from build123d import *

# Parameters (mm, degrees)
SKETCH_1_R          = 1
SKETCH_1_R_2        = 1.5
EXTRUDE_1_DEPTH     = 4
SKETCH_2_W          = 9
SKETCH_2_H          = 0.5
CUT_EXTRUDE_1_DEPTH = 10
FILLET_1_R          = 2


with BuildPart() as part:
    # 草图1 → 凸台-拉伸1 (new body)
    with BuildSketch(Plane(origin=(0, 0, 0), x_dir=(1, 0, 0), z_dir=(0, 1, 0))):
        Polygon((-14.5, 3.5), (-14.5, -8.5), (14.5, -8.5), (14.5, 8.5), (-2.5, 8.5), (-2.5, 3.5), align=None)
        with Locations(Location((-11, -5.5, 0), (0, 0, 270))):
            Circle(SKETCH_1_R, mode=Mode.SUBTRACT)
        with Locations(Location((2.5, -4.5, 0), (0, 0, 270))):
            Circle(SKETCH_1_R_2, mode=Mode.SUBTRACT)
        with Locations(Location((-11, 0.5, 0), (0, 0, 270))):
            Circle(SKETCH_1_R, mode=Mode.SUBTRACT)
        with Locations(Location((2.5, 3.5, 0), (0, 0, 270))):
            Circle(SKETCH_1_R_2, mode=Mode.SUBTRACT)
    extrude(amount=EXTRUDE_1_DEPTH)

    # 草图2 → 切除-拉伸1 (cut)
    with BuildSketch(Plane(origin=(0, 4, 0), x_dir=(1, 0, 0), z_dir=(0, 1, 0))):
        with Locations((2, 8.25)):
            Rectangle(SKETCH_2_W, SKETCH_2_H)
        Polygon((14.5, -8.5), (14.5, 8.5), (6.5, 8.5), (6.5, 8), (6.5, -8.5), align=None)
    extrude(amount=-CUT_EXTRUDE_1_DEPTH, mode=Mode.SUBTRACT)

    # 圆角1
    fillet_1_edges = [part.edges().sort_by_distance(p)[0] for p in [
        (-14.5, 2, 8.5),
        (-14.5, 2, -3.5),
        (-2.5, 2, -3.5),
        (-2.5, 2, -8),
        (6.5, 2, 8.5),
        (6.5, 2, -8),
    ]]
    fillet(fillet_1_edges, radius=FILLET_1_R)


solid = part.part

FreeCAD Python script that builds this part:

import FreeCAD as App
import Part
import Sketcher
from FreeCAD import Vector


def edges_at(feature, points):
    """Names of the edges that pass closest to the given points."""
    edges = feature.Shape.Edges
    near = lambda p: min(range(len(edges)), key=lambda i: edges[i].distToShape(Part.Vertex(*p))[0])
    return sorted({f"Edge{near(p) + 1}" for p in points})


def add_polygon(sketch, points):
    """Adds a closed chain of lines whose ends are joined by coincident constraints."""
    first, n = sketch.GeometryCount, len(points)
    for a, b in zip(points, points[1:] + points[:1]):
        sketch.addGeometry(Part.LineSegment(App.Vector(*a, 0), App.Vector(*b, 0)), False)
    for i in range(n):
        sketch.addConstraint(Sketcher.Constraint("Coincident", first + i, 2, first + (i + 1) % n, 1))

doc = App.newDocument("Part")
body = doc.addObject("PartDesign::Body", "Body")

sketch1 = body.newObject("Sketcher::SketchObject", "Sketch")
sketch1.AttachmentSupport = (doc.getObject("XZ_Plane"), [""])
sketch1.MapMode = "FlatFace"
add_polygon(sketch1, [(-14.5, -3.5), (-14.5, 8.5), (14.5, 8.5), (14.5, -8.5), (-2.5, -8.5), (-2.5, -3.5)])
sketch1.addGeometry(Part.Circle(Vector(-11, 5.5, 0), Vector(0, 0, 1), 1), False)
sketch1.addGeometry(Part.Circle(Vector(2.5, 4.5, 0), Vector(0, 0, 1), 1.5), False)
sketch1.addGeometry(Part.Circle(Vector(-11, -0.5, 0), Vector(0, 0, 1), 1), False)
sketch1.addGeometry(Part.Circle(Vector(2.5, -3.5, 0), Vector(0, 0, 1), 1.5), False)
sketch1.addConstraint([
    Sketcher.Constraint("Vertical", 0),
    Sketcher.Constraint("Horizontal", 1),
    Sketcher.Constraint("Vertical", 2),
    Sketcher.Constraint("Horizontal", 3),
    Sketcher.Constraint("Vertical", 4),
    Sketcher.Constraint("Horizontal", 5),
    Sketcher.Constraint("Equal", 6, 8),
    Sketcher.Constraint("Equal", 7, 9),
    Sketcher.Constraint("Symmetric", 0, 2, 2, 2, -1, 1),
    Sketcher.Constraint("Horizontal", 9, 3, 4, 2),
    Sketcher.Constraint("Vertical", 6, 3, 8, 3),
    Sketcher.Constraint("Vertical", 7, 3, 9, 3),
    Sketcher.Constraint("Equal", 5, 0),
    Sketcher.Constraint("Equal", 3, 2),
    Sketcher.Constraint("Diameter", 6, 2.0),
    Sketcher.Constraint("Diameter", 7, 3.0),
    Sketcher.Constraint("DistanceX", 1, 1, 1, 2, 29.0),
    Sketcher.Constraint("DistanceX", 3, 2, 3, 1, 17.0),
    Sketcher.Constraint("DistanceX", 6, 3, -1, 1, 11.0),
    Sketcher.Constraint("DistanceY", 7, 3, 6, 3, 1.0),
    Sketcher.Constraint("DistanceY", 8, 3, 6, 3, 6.0),
    Sketcher.Constraint("DistanceY", 9, 3, 7, 3, 8.0),
    Sketcher.Constraint("DistanceX", 0, 2, 7, 3, 17.0),
])
pad1 = body.newObject("PartDesign::Pad", "Pad")
pad1.Profile = sketch1
pad1.Length = 4
pad1.Reversed = True

sketch2 = body.newObject("Sketcher::SketchObject", "Sketch001")
sketch2.AttachmentSupport = (doc.getObject("XZ_Plane"), [""])
sketch2.MapMode = "FlatFace"
sketch2.AttachmentOffset = App.Placement(Vector(0, 0, -4), App.Rotation())
add_polygon(sketch2, [(-2.5, -8.5), (-2.5, -8), (6.5, -8), (6.5, 8.5), (14.5, 8.5), (14.5, -8.5)])
sketch2.addConstraint([
    Sketcher.Constraint("Vertical", 0),
    Sketcher.Constraint("Horizontal", 1),
    Sketcher.Constraint("Vertical", 2),
    Sketcher.Constraint("Horizontal", 3),
    Sketcher.Constraint("Vertical", 4),
    Sketcher.Constraint("Horizontal", 5),
    Sketcher.Constraint("Equal", 5, 4),
    Sketcher.Constraint("DistanceX", 1, 1, 1, 2, 9.0),
    Sketcher.Constraint("DistanceX", 3, 1, 3, 2, 8.0),
    Sketcher.Constraint("DistanceY", 0, 1, 0, 2, 0.5),
    Sketcher.Constraint("DistanceY", 0, 2, -1, 1, 8.0),
    Sketcher.Constraint("DistanceX", 0, 2, -1, 1, 2.5),
])
pocket1 = body.newObject("PartDesign::Pocket", "Pocket")
pocket1.Profile = sketch2
pocket1.Length = 10
pocket1.Reversed = True
doc.recompute()

fillet = body.newObject("PartDesign::Fillet", "Fillet")
fillet.Base = (pocket1, edges_at(pocket1, [
    (-14.5, 2, 8.5),
    (-14.5, 2, -3.5),
    (-2.5, 2, -3.5),
    (-2.5, 2, -8),
    (6.5, 2, 8.5),
    (6.5, 2, -8),
]))
fillet.Radius = 2

doc.recompute()
